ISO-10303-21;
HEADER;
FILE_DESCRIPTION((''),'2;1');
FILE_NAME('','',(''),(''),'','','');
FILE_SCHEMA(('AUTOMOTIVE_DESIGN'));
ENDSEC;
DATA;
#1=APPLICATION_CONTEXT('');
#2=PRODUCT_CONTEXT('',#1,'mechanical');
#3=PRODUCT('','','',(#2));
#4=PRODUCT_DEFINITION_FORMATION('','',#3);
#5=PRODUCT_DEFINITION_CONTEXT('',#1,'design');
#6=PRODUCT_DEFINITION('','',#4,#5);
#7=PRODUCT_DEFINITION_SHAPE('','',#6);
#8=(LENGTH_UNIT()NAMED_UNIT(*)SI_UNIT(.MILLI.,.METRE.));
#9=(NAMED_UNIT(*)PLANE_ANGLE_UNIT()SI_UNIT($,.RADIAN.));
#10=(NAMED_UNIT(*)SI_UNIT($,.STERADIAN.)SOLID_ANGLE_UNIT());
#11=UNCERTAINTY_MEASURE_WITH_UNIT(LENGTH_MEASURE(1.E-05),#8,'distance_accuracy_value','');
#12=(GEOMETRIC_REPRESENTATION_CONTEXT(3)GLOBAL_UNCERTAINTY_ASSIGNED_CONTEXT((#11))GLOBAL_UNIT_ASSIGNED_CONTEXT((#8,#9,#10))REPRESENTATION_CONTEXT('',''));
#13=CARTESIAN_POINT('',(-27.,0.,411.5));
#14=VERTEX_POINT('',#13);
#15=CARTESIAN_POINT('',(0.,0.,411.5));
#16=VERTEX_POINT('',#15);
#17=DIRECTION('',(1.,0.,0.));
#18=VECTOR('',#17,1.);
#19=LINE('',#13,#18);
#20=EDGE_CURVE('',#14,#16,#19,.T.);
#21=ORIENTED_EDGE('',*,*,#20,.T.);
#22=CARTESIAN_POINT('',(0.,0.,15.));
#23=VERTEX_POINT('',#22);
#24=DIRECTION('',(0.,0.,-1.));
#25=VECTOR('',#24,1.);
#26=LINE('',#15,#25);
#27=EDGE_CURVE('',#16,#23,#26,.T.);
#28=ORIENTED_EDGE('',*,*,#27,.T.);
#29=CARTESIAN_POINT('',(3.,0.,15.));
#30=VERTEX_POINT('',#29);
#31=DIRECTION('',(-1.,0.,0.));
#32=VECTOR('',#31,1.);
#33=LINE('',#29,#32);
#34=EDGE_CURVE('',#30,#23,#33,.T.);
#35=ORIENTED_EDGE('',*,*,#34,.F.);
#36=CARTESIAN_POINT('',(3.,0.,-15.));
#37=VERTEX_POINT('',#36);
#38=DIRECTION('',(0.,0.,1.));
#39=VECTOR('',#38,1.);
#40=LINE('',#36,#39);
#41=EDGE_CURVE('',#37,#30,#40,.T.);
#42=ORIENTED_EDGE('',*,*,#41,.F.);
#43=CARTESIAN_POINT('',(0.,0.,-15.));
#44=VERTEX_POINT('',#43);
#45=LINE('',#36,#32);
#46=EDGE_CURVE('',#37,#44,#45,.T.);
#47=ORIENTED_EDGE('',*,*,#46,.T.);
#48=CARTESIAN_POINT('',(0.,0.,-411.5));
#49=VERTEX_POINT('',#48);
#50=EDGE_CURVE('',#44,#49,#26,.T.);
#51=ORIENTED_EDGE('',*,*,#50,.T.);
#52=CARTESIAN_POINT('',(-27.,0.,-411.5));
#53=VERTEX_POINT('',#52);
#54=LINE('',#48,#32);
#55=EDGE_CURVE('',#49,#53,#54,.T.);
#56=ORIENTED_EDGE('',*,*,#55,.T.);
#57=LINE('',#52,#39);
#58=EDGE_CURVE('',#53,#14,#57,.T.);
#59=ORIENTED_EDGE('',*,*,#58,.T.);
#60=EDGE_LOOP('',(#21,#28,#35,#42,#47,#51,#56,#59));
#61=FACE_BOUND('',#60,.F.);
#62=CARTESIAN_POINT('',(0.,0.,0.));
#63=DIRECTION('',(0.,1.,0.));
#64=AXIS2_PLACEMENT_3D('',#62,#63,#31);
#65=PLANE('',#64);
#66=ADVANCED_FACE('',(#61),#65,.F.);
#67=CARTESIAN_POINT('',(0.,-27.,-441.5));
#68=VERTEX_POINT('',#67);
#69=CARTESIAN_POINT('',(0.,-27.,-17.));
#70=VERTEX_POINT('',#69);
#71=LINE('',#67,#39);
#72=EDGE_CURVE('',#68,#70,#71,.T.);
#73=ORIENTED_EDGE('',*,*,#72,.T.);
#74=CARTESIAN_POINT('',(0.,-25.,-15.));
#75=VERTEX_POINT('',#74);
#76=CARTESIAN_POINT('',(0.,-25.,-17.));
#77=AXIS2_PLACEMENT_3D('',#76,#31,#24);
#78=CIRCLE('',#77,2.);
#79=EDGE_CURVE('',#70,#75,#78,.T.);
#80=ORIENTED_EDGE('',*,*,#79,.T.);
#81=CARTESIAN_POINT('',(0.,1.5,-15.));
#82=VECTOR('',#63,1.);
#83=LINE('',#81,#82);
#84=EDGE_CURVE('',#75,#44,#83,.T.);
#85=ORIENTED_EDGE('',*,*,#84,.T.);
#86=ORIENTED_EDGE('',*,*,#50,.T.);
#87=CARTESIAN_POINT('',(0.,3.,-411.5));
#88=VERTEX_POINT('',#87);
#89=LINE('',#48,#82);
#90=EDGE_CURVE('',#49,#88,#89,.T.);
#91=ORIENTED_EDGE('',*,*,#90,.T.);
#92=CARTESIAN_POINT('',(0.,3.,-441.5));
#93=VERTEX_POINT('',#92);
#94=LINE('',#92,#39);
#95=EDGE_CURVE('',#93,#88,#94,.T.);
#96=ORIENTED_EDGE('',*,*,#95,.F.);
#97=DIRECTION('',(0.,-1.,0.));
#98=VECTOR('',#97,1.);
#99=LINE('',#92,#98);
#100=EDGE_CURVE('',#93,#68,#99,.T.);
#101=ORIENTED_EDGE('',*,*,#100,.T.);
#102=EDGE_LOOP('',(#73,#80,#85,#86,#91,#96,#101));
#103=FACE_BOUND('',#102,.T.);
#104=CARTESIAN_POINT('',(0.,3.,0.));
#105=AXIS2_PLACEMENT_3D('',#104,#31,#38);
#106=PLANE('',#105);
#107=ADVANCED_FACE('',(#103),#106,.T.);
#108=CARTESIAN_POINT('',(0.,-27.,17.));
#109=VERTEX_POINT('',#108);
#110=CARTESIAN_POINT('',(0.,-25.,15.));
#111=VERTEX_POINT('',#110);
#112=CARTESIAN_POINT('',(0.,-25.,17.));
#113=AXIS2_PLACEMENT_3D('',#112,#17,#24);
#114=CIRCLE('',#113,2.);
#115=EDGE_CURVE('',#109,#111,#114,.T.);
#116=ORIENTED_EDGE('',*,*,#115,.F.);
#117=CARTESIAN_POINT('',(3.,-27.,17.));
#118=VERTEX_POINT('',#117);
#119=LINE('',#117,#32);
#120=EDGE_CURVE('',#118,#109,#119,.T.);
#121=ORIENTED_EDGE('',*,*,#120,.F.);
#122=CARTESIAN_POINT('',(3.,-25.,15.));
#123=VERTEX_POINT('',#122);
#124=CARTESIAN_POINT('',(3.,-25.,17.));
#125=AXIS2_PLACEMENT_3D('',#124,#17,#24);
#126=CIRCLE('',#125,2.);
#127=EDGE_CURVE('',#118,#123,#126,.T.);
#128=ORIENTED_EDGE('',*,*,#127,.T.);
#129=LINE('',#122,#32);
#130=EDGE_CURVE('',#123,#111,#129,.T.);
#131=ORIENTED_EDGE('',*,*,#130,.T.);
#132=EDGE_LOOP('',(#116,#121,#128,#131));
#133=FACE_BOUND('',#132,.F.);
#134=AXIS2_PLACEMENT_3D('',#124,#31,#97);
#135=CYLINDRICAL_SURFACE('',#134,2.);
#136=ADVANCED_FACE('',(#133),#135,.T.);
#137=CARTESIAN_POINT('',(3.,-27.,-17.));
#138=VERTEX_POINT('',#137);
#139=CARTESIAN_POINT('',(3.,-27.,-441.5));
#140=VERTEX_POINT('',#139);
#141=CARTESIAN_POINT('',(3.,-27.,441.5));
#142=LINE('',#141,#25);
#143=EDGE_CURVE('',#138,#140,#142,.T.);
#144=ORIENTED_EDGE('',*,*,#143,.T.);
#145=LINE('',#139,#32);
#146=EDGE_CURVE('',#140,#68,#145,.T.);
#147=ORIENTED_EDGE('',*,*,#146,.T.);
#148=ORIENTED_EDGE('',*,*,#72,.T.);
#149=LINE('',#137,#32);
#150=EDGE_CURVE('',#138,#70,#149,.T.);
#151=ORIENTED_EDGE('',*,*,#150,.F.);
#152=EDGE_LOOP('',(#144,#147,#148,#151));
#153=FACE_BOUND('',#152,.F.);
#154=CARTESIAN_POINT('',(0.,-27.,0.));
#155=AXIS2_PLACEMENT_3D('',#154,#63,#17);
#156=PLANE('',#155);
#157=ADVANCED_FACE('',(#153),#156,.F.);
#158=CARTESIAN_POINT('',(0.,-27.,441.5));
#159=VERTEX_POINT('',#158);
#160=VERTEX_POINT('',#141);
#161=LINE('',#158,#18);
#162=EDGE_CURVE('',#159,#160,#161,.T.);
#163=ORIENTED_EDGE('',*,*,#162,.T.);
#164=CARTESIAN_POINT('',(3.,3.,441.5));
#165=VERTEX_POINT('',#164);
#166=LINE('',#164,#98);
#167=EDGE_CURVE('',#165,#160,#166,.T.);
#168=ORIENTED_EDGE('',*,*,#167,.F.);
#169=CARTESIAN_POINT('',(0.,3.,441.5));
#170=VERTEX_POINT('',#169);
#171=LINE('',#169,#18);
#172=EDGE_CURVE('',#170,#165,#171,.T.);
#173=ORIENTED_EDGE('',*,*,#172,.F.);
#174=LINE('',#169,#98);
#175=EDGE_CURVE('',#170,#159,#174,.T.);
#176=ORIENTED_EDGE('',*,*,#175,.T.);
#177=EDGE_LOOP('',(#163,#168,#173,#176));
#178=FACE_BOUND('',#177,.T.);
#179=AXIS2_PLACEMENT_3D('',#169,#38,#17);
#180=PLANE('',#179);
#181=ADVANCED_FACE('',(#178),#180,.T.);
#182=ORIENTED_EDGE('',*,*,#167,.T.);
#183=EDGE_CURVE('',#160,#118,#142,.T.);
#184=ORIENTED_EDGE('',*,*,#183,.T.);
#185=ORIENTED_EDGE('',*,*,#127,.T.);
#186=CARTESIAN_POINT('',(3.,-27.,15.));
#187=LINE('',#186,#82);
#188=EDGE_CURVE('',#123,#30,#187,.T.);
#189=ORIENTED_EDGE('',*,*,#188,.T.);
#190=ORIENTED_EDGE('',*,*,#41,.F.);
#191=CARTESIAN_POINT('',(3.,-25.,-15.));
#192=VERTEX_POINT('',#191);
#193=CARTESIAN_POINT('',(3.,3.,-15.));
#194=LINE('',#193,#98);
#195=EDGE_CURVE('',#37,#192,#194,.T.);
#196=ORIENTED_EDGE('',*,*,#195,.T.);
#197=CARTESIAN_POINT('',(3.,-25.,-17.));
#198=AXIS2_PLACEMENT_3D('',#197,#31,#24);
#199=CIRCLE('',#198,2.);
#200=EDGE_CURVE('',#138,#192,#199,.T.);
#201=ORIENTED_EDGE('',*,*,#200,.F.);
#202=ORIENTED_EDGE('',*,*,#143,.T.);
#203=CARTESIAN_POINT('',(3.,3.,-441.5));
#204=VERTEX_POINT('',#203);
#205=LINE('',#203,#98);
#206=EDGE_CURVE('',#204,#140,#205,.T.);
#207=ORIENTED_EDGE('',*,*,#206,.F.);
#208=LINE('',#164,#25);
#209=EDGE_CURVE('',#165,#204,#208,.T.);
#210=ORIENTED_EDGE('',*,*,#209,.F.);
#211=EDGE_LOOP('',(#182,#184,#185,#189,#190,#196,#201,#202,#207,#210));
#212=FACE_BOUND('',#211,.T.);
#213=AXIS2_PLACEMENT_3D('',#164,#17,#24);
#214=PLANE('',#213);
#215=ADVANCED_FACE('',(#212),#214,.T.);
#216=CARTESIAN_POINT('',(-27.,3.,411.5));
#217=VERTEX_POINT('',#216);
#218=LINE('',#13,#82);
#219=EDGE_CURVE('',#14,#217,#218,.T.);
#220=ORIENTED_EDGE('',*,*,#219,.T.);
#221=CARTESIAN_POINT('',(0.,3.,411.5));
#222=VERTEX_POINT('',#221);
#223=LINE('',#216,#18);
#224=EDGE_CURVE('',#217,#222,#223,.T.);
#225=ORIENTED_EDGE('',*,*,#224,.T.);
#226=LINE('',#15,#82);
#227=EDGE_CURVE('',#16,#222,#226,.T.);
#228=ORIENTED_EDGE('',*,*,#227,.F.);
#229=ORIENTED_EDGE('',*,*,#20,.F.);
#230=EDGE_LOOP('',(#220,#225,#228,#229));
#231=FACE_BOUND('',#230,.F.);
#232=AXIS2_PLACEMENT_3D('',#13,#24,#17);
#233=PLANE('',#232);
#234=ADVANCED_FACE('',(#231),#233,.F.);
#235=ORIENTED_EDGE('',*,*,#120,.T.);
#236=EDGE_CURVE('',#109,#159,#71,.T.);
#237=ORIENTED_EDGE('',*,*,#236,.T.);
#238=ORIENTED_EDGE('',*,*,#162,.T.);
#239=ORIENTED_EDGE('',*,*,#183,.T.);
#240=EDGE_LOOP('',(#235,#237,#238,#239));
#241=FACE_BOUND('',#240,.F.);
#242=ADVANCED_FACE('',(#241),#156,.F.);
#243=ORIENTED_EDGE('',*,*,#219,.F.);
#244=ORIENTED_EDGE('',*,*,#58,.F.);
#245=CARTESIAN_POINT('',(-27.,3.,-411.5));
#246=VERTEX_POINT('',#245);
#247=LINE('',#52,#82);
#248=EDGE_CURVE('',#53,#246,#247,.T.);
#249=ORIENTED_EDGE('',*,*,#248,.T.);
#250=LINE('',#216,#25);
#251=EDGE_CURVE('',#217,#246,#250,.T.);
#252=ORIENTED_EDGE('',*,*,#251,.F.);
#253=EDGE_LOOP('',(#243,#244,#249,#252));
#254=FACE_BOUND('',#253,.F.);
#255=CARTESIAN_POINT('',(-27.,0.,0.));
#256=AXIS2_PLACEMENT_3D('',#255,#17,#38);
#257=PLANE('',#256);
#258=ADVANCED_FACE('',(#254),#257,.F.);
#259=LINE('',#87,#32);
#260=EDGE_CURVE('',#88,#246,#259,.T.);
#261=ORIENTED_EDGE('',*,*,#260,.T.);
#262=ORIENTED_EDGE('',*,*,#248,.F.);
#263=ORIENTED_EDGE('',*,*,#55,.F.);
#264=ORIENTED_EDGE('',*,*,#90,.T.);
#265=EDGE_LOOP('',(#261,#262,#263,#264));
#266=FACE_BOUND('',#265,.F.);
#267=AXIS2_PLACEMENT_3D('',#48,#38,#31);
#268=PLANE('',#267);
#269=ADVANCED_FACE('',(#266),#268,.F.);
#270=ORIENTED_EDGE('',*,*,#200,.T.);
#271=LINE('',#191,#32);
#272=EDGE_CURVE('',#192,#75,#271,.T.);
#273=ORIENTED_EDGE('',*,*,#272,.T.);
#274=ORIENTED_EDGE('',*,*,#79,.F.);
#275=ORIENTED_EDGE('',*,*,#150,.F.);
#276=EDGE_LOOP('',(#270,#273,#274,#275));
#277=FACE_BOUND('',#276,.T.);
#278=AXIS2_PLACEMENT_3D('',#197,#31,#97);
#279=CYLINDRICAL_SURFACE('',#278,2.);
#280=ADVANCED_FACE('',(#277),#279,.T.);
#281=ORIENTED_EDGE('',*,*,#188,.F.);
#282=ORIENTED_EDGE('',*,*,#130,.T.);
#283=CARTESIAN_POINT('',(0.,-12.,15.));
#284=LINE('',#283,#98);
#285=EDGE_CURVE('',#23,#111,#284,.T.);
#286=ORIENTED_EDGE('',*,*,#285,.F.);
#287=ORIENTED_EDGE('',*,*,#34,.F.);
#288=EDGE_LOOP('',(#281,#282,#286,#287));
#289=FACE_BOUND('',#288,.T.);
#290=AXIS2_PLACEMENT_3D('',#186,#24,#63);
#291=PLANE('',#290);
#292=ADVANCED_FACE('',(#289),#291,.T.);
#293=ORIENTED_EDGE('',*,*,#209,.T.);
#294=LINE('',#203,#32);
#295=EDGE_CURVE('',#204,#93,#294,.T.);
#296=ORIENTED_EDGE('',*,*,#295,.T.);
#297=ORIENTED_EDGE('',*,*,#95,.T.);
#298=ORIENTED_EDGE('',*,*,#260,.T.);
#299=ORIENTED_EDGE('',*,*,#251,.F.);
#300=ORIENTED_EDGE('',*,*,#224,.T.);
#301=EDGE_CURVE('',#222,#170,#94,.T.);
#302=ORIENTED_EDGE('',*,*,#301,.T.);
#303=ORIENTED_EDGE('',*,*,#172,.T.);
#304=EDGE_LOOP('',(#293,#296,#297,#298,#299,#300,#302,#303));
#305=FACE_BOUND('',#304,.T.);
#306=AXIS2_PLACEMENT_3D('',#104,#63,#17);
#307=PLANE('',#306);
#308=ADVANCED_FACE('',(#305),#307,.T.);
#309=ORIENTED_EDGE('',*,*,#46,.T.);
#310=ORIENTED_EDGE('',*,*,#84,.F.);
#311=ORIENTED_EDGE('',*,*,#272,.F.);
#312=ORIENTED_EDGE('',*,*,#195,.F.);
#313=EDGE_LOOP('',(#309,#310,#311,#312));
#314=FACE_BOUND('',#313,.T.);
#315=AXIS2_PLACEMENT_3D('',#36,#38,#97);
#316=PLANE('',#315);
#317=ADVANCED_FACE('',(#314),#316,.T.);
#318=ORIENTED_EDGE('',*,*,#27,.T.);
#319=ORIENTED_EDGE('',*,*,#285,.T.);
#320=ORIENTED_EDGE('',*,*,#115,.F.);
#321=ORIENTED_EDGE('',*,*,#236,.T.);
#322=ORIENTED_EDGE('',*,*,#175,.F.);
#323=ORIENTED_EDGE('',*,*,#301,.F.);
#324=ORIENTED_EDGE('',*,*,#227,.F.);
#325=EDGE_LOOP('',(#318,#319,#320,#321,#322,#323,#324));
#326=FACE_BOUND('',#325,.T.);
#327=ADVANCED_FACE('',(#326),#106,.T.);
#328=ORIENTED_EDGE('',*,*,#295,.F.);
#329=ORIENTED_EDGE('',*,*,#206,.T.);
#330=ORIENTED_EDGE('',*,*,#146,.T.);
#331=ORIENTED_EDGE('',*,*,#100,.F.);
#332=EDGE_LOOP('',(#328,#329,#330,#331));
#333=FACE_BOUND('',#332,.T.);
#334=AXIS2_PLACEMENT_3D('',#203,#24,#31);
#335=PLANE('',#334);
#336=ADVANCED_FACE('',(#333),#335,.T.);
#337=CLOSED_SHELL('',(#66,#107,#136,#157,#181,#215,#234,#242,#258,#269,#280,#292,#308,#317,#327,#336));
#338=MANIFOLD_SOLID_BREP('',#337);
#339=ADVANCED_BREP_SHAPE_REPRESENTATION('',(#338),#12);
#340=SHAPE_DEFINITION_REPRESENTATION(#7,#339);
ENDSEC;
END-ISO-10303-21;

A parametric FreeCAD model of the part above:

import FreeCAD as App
import Part
import Sketcher

V = App.Vector
Q = App.Units.Quantity


def edges_at(feature, points):
    """Names of the edges that pass closest to the given points."""
    edges = feature.Shape.Edges
    near = lambda p: min(range(len(edges)), key=lambda i: edges[i].distToShape(Part.Vertex(*p))[0])
    return sorted({f"Edge{near(p) + 1}" for p in points})

doc = App.newDocument("Part")
body = doc.addObject("PartDesign::Body", "Body")

# Sketch on XZ plane
sketch1 = doc.addObject("Sketcher::SketchObject", "Sketch")
body.addObject(sketch1)
sketch1.AttachmentSupport = (doc.XZ_Plane, [""])
sketch1.MapMode = "FlatFace"
sketch1.addGeometry([
    Part.LineSegment(V(-27, 412, 0), V(0, 412, 0)),
    Part.LineSegment(V(0, 412, 0), V(0, -412, 0)),
    Part.LineSegment(V(0, -412, 0), V(-27, -412, 0)),
    Part.LineSegment(V(-27, -412, 0), V(-27, 412, 0)),
], False)
sketch1.addConstraint([
    Sketcher.Constraint("Coincident", 0, 2, 1, 1),
    Sketcher.Constraint("Coincident", 1, 2, 2, 1),
    Sketcher.Constraint("Coincident", 2, 2, 3, 1),
    Sketcher.Constraint("Coincident", 3, 2, 0, 1),
    Sketcher.Constraint("Horizontal", 0),
    Sketcher.Constraint("Vertical", 1),
    Sketcher.Constraint("Horizontal", 2),
    Sketcher.Constraint("Vertical", 3),
    Sketcher.Constraint("Symmetric", 0, 2, 1, 2, -1, 1),
    Sketcher.Constraint("DistanceX", 0, 1, 0, 2, Q("27 mm")),
    Sketcher.Constraint("DistanceY", 1, 2, 1, 1, Q("823 mm")),
])
pad1 = doc.addObject("PartDesign::Pad", "Pad")
body.addObject(pad1)
pad1.Profile = sketch1
pad1.Length = 3
pad1.Reversed = True

# Sketch on XZ plane
sketch2 = doc.addObject("Sketcher::SketchObject", "Sketch001")
body.addObject(sketch2)
sketch2.AttachmentSupport = (doc.XZ_Plane, [""])
sketch2.MapMode = "FlatFace"
sketch2.AttachmentOffset = App.Placement(V(0, 0, -3), App.Rotation())
sketch2.addGeometry([
    Part.LineSegment(V(0, -441.5, 0), V(0, 441.5, 0)),
    Part.LineSegment(V(0, 441.5, 0), V(3, 441.5, 0)),
    Part.LineSegment(V(3, 441.5, 0), V(3, -441.5, 0)),
    Part.LineSegment(V(3, -441.5, 0), V(0, -441.5, 0)),
], False)
sketch2.addConstraint([
    Sketcher.Constraint("Coincident", 0, 2, 1, 1),
    Sketcher.Constraint("Coincident", 1, 2, 2, 1),
    Sketcher.Constraint("Coincident", 2, 2, 3, 1),
    Sketcher.Constraint("Coincident", 3, 2, 0, 1),
    Sketcher.Constraint("Vertical", 0),
    Sketcher.Constraint("Horizontal", 1),
    Sketcher.Constraint("Vertical", 2),
    Sketcher.Constraint("Horizontal", 3),
    Sketcher.Constraint("Symmetric", 0, 2, 3, 2, -1, 1),
    Sketcher.Constraint("DistanceX", 1, 1, 1, 2, Q("3 mm")),
    Sketcher.Constraint("DistanceY", 0, 1, 0, 2, Q("883 mm")),
])
pad2 = doc.addObject("PartDesign::Pad", "Pad001")
body.addObject(pad2)
pad2.Profile = sketch2
pad2.Length = 30

# Sketch on YZ plane
sketch3 = doc.addObject("Sketcher::SketchObject", "Sketch002")
body.addObject(sketch3)
sketch3.AttachmentSupport = (doc.YZ_Plane, [""])
sketch3.MapMode = "FlatFace"
sketch3.AttachmentOffset = App.Placement(V(0, 0, 3), App.Rotation())
sketch3.addGeometry([
    Part.LineSegment(V(-27, -15, 0), V(0, -15, 0)),
    Part.LineSegment(V(0, -15, 0), V(0, 15, 0)),
    Part.LineSegment(V(0, 15, 0), V(-27, 15, 0)),
    Part.LineSegment(V(-27, 15, 0), V(-27, -15, 0)),
], False)
sketch3.addConstraint([
    Sketcher.Constraint("Coincident", 0, 2, 1, 1),
    Sketcher.Constraint("Coincident", 1, 2, 2, 1),
    Sketcher.Constraint("Coincident", 2, 2, 3, 1),
    Sketcher.Constraint("Coincident", 3, 2, 0, 1),
    Sketcher.Constraint("Horizontal", 0),
    Sketcher.Constraint("Vertical", 1),
    Sketcher.Constraint("Horizontal", 2),
    Sketcher.Constraint("Vertical", 3),
    Sketcher.Constraint("Symmetric", 0, 2, 1, 2, -1, 1),
    Sketcher.Constraint("DistanceY", 1, 1, 1, 2, Q("30 mm")),
    Sketcher.Constraint("DistanceX", 0, 1, 0, 2, Q("27 mm")),
])
pocket1 = doc.addObject("PartDesign::Pocket", "Pocket")
body.addObject(pocket1)
pocket1.Profile = sketch3
pocket1.Length = 10
doc.recompute()

fillet = doc.addObject("PartDesign::Fillet", "Fillet")
body.addObject(fillet)
fillet.Base = (pocket1, edges_at(pocket1, [(1.5, -27, 15), (1.5, -27, -15)]))
fillet.Radius = 2

doc.recompute()
